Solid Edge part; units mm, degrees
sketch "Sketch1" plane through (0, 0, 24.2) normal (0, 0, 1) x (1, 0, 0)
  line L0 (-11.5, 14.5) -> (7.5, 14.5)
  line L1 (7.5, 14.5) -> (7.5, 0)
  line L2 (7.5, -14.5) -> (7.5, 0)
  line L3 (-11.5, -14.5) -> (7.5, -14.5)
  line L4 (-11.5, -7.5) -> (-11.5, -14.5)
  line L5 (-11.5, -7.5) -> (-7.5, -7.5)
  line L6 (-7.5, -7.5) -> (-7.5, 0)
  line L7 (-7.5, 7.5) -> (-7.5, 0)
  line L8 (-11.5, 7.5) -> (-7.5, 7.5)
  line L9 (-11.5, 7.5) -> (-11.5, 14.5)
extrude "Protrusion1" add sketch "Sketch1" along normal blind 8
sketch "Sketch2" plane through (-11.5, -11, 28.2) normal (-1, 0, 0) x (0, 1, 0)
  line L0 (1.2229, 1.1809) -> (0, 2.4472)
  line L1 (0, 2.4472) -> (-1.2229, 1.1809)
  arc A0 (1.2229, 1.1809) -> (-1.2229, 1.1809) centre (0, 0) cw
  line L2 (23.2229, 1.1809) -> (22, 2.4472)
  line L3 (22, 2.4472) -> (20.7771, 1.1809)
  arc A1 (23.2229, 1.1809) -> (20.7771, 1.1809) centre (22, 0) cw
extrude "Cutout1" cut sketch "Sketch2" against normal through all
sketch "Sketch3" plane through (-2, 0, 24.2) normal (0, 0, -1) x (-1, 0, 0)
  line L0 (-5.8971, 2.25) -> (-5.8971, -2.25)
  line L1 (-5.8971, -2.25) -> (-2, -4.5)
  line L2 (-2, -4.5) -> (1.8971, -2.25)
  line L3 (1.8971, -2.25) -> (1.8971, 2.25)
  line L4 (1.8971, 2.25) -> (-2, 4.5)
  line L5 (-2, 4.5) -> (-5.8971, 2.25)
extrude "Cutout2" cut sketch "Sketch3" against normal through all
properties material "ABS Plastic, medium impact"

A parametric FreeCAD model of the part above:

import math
import FreeCAD as App
import Part
import Sketcher
from FreeCAD import Vector
Q = App.Units.Quantity


def add_polygon(sketch, points):
    """Adds a closed chain of lines whose ends are joined by coincident constraints."""
    first, n = sketch.GeometryCount, len(points)
    for a, b in zip(points, points[1:] + points[:1]):
        sketch.addGeometry(Part.LineSegment(App.Vector(*a, 0), App.Vector(*b, 0)), False)
    for i in range(n):
        sketch.addConstraint(Sketcher.Constraint("Coincident", first + i, 2, first + (i + 1) % n, 1))

doc = App.newDocument("Part")
body = doc.addObject("PartDesign::Body", "Body")

# Sketch on XY plane
sketch1 = doc.addObject("Sketcher::SketchObject", "Sketch")
body.addObject(sketch1)
sketch1.AttachmentSupport = (doc.XY_Plane, [""])
sketch1.MapMode = "FlatFace"
sketch1.AttachmentOffset = App.Placement(Vector(0, 0, 24.2), App.Rotation())
add_polygon(sketch1, [(7.5, 14.5), (-11.5, 14.5), (-11.5, 7.5), (-7.5, 7.5), (-7.5, -7.5), (-11.5, -7.5), (-11.5, -14.5), (7.5, -14.5)])  # lines 0-7
sketch1.addConstraint([
    Sketcher.Constraint("Horizontal", 0),
    Sketcher.Constraint("Vertical", 1),
    Sketcher.Constraint("Horizontal", 2),
    Sketcher.Constraint("Vertical", 3),
    Sketcher.Constraint("Horizontal", 4),
    Sketcher.Constraint("Vertical", 5),
    Sketcher.Constraint("Horizontal", 6),
    Sketcher.Constraint("Vertical", 7),
    Sketcher.Constraint("Symmetric", 1, 2, 4, 2, -1),
    Sketcher.Constraint("Equal", 1, 5),
    Sketcher.Constraint("DistanceX", 0, 2, 0, 1, Q("19 mm")),
    Sketcher.Constraint("DistanceX", 2, 1, 2, 2, Q("4 mm")),
    Sketcher.Constraint("DistanceY", 1, 2, 1, 1, Q("7 mm")),
    Sketcher.Constraint("DistanceY", 3, 2, 3, 1, Q("15 mm")),
    Sketcher.Constraint("DistanceX", 0, 2, -1, 1, Q("11.5 mm")),
])
pad1 = doc.addObject("PartDesign::Pad", "Pad")
body.addObject(pad1)
pad1.Profile = sketch1
pad1.Length = 8

# Sketch on YZ plane
sketch2 = doc.addObject("Sketcher::SketchObject", "Sketch001")
body.addObject(sketch2)
sketch2.AttachmentSupport = (doc.YZ_Plane, [""])
sketch2.MapMode = "FlatFace"
sketch2.AttachmentOffset = App.Placement(Vector(0, 0, -11.5), App.Rotation())
sketch2.addGeometry([
    Part.ArcOfCircle(Part.Circle(Vector(-11, 28.2, 0), Vector(0, 0, 1), 1.7), math.radians(-44), math.radians(224)),  # 0
    Part.LineSegment(Vector(-9.8, 27, 0), Vector(-11, 25.8, 0)),  # 1
    Part.LineSegment(Vector(-11, 25.8, 0), Vector(-12.2, 27, 0)),  # 2
    Part.ArcOfCircle(Part.Circle(Vector(11, 28.2, 0), Vector(0, 0, 1), 1.7), math.radians(-44), math.radians(224)),  # 3
    Part.LineSegment(Vector(12.2, 27, 0), Vector(11, 25.8, 0)),  # 4
    Part.LineSegment(Vector(11, 25.8, 0), Vector(9.8, 27, 0)),  # 5
], False)
sketch2.addConstraint([
    Sketcher.Constraint("Tangent", 0, 1, 1, 1),
    Sketcher.Constraint("Coincident", 1, 2, 2, 1),
    Sketcher.Constraint("Tangent", 2, 2, 0, 2),
    Sketcher.Constraint("Tangent", 3, 1, 4, 1),
    Sketcher.Constraint("Coincident", 4, 2, 5, 1),
    Sketcher.Constraint("Tangent", 5, 2, 3, 2),
    Sketcher.Constraint("Equal", 0, 3),
    Sketcher.Constraint("Symmetric", 0, 3, 3, 3, -2),
    Sketcher.Constraint("Symmetric", 1, 2, 4, 2, -2),
    Sketcher.Constraint("Parallel", 1, 4),
    Sketcher.Constraint("Radius", 0, Q("1.7 mm")),
    Sketcher.Constraint("Angle", 1, Q("-134.0011 deg")),
    Sketcher.Constraint("DistanceX", 0, 3, -1, 1, Q("11 mm")),
    Sketcher.Constraint("DistanceY", -1, 1, 0, 3, Q("28.2 mm")),
])
pocket1 = doc.addObject("PartDesign::Pocket", "Pocket")
body.addObject(pocket1)
pocket1.Profile = sketch2
pocket1.Type = "ThroughAll"
pocket1.Reversed = True

# Sketch on XY plane
sketch3 = doc.addObject("Sketcher::SketchObject", "Sketch002")
body.addObject(sketch3)
sketch3.AttachmentSupport = (doc.XY_Plane, [""])
sketch3.MapMode = "FlatFace"
sketch3.AttachmentOffset = App.Placement(Vector(0, 0, 24.2), App.Rotation())
add_polygon(sketch3, [(0, 4.5), (3.9, 2.2), (3.9, -2.2), (0, -4.5), (-3.9, -2.2), (-3.9, 2.2)])  # lines 0-5
sketch3.addConstraint([
    Sketcher.Constraint("Vertical", 1),
    Sketcher.Constraint("Vertical", 4),
    Sketcher.Constraint("Symmetric", 0, 2, 3, 2, -1, 1),
    Sketcher.Constraint("Symmetric", 2, 2, 5, 2, -1, 1),
    Sketcher.Constraint("PointOnObject", 2, 2, -2),
    Sketcher.Constraint("Parallel", 2, 5),
    Sketcher.Constraint("Horizontal", 1, 2, 3, 2),
    Sketcher.Constraint("Angle", 0, Q("-30 deg")),
    Sketcher.Constraint("DistanceY", 1, 2, 1, 1, Q("4.5 mm")),
    Sketcher.Constraint("DistanceY", 2, 2, 5, 2, Q("9 mm")),
])
pocket2 = doc.addObject("PartDesign::Pocket", "Pocket001")
body.addObject(pocket2)
pocket2.Profile = sketch3
pocket2.Type = "ThroughAll"
pocket2.Reversed = True

doc.recompute()
